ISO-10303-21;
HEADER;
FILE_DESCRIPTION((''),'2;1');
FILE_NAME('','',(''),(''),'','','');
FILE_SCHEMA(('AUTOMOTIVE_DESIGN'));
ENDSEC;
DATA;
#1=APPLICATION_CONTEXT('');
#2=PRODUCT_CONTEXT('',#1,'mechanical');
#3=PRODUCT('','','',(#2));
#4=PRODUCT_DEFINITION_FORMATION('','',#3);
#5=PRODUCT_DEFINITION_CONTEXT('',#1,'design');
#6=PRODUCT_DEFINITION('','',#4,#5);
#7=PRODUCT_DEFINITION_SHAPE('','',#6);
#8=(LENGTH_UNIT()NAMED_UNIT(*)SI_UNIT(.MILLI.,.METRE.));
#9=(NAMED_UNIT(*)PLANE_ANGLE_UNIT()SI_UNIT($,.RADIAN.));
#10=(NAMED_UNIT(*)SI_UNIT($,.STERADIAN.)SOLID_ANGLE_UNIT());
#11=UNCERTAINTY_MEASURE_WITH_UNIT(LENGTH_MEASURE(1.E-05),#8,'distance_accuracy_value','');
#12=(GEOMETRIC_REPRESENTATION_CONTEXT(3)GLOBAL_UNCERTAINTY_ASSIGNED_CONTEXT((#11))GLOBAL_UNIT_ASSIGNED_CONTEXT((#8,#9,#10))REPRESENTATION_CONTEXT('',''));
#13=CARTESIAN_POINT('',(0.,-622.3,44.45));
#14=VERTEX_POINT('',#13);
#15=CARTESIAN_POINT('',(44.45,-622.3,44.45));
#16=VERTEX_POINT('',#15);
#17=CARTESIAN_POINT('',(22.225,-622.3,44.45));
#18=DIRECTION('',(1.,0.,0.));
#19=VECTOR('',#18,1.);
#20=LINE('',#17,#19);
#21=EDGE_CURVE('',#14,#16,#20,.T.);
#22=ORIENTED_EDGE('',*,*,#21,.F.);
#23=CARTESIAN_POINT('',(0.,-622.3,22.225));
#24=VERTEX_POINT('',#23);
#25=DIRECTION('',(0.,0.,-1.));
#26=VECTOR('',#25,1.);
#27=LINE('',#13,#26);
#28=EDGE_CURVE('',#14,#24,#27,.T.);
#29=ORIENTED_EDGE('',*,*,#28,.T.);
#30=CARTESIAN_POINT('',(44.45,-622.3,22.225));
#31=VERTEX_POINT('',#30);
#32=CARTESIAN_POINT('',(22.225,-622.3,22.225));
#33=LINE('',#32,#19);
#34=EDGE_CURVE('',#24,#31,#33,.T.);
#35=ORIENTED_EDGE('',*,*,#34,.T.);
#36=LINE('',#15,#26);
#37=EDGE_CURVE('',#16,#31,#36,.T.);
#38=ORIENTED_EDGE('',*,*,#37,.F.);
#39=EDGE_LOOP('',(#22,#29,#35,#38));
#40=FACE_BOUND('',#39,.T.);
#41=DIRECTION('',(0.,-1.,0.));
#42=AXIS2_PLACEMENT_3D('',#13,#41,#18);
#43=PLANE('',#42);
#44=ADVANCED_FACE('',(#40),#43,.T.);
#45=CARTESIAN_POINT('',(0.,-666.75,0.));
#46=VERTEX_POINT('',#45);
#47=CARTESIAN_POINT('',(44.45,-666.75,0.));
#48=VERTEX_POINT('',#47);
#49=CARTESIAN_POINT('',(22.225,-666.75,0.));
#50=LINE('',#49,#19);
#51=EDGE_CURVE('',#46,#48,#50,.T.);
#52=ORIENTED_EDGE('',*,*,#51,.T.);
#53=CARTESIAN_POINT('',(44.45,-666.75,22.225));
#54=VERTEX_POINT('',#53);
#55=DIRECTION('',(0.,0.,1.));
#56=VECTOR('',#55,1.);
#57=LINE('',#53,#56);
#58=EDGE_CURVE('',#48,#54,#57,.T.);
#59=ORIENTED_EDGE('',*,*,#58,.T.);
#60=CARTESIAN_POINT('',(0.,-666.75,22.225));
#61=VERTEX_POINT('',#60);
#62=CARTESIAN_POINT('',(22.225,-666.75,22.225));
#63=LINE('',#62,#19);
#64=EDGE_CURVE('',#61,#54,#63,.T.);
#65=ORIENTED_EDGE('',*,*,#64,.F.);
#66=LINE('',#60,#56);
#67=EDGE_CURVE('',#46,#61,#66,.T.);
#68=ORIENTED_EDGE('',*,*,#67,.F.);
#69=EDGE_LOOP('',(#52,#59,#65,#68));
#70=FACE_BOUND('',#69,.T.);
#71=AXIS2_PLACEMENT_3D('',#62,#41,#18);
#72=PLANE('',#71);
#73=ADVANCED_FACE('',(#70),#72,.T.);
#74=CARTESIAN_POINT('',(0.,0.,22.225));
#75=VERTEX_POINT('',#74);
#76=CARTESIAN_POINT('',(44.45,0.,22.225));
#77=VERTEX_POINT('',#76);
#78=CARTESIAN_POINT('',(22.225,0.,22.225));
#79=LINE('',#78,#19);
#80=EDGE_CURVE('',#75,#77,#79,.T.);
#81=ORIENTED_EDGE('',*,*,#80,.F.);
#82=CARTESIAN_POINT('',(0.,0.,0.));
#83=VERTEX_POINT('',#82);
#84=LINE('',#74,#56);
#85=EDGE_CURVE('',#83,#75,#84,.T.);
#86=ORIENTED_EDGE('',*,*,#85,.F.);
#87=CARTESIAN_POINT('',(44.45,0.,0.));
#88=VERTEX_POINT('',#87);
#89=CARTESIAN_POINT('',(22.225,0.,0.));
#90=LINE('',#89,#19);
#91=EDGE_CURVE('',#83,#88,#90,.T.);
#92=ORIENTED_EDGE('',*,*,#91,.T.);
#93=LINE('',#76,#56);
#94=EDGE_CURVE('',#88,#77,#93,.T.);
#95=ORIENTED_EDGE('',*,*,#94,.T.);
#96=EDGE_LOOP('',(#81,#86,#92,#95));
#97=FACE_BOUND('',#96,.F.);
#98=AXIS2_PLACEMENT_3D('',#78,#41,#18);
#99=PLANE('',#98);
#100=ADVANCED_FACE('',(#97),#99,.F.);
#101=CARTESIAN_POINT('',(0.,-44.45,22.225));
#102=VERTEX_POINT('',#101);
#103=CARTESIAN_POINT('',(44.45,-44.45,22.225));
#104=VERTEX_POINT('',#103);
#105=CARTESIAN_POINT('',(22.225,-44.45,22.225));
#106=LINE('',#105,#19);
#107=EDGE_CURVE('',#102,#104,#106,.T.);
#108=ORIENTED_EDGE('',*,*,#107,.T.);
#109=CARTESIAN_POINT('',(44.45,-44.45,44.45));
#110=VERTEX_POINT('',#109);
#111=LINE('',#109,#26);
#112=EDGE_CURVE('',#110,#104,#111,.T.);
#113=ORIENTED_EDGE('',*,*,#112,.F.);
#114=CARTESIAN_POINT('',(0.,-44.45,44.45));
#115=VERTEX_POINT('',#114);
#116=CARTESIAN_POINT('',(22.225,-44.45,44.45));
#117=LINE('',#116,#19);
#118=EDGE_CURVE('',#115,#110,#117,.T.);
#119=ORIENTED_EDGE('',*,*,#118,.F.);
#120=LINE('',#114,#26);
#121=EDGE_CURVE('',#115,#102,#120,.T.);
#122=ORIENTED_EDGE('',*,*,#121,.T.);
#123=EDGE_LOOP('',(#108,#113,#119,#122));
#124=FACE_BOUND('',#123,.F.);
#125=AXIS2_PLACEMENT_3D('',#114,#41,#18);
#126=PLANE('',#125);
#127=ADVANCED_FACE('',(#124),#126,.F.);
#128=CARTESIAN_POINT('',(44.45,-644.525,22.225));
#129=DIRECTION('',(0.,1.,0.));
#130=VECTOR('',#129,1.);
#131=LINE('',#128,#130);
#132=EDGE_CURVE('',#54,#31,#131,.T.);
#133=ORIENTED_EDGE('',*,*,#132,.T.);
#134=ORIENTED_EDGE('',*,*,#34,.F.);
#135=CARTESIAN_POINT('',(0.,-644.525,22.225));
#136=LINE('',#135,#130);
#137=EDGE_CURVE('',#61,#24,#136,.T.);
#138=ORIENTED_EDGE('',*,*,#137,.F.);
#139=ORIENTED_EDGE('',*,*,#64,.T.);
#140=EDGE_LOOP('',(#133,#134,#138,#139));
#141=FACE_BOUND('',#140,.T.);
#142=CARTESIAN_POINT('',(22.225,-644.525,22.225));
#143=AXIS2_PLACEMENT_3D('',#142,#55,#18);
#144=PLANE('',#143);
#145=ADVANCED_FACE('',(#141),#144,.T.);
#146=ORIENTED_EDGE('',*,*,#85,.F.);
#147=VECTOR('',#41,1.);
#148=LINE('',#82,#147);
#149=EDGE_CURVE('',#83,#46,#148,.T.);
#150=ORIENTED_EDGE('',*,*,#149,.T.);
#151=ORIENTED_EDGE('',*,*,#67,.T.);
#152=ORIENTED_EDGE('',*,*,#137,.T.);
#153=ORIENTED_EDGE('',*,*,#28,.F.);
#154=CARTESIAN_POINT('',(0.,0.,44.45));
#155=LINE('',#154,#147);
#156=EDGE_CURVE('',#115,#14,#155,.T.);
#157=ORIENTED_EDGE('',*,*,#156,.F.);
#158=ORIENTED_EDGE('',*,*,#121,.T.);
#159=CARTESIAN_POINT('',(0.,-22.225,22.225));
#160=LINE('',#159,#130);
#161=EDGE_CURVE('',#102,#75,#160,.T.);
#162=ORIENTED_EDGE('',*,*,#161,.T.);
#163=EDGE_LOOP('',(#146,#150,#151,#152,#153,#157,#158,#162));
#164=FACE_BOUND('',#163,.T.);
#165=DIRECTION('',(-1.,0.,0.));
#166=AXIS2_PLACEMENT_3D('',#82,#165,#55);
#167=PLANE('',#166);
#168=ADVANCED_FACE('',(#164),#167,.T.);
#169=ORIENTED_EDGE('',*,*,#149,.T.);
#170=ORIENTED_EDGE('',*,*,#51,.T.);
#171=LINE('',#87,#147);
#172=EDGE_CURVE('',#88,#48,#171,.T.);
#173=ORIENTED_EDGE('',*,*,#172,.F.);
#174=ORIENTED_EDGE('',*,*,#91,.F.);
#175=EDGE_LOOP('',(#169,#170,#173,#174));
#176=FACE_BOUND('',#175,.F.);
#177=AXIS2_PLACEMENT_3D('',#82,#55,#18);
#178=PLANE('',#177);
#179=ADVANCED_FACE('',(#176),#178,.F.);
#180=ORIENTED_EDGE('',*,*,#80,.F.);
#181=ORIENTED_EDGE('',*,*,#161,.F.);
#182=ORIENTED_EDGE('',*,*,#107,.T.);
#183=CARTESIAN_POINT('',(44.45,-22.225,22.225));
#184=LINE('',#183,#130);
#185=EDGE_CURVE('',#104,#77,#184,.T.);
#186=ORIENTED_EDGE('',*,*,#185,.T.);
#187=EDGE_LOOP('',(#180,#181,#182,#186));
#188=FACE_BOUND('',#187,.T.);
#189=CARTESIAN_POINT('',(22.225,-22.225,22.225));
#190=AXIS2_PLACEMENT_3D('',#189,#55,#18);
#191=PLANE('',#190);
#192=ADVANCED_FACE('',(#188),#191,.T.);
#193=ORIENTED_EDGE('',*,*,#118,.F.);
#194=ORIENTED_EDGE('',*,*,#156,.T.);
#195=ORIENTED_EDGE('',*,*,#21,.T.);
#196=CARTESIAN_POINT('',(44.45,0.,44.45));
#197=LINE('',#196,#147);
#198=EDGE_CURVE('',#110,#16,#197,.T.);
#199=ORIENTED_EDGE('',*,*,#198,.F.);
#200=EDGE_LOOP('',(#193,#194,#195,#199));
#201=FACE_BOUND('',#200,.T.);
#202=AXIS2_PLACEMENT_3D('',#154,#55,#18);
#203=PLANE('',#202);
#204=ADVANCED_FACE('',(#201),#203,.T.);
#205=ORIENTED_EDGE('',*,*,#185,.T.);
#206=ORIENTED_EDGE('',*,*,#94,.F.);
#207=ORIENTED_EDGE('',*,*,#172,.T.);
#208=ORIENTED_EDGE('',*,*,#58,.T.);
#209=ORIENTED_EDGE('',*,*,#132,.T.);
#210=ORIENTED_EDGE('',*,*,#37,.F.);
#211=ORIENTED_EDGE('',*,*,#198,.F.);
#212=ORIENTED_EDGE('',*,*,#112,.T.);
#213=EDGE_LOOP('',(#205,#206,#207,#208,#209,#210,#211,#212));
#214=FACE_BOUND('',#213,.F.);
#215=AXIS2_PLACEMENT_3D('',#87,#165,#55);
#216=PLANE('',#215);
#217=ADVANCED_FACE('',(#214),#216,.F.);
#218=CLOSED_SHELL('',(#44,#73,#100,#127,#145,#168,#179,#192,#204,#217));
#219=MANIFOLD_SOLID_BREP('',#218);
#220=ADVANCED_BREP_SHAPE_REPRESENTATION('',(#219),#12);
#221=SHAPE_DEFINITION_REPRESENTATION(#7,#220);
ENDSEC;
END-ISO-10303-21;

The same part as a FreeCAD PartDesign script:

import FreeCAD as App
import Part
import Sketcher
Q = App.Units.Quantity


def add_polygon(sketch, points):
    """Adds a closed chain of lines whose ends are joined by coincident constraints."""
    first, n = sketch.GeometryCount, len(points)
    for a, b in zip(points, points[1:] + points[:1]):
        sketch.addGeometry(Part.LineSegment(App.Vector(*a, 0), App.Vector(*b, 0)), False)
    for i in range(n):
        sketch.addConstraint(Sketcher.Constraint("Coincident", first + i, 2, first + (i + 1) % n, 1))

doc = App.newDocument("Part")
body = doc.addObject("PartDesign::Body", "Body")

# Sketch on XZ plane
sketch1 = body.newObject("Sketcher::SketchObject", "Sketch")
sketch1.AttachmentSupport = (doc.getObject("XZ_Plane"), [""])
sketch1.MapMode = "FlatFace"
add_polygon(sketch1, [(0, 44.45), (0, 0), (44.45, 0), (44.45, 44.45)])  # lines 0-3
sketch1.addConstraint([
    Sketcher.Constraint("Vertical", 0),
    Sketcher.Constraint("Horizontal", 1),
    Sketcher.Constraint("Vertical", 2),
    Sketcher.Constraint("Horizontal", 3),
    Sketcher.Constraint("Coincident", 0, 2, -1, 1),
    Sketcher.Constraint("Equal", 3, 0),
    Sketcher.Constraint("DistanceX", 1, 1, 1, 2, Q("1.75 in")),
])
pad1 = body.newObject("PartDesign::Pad", "Pad")
pad1.Profile = sketch1
pad1.Length = Q("26.25 in")

# Sketch on XY plane
sketch2 = body.newObject("Sketcher::SketchObject", "Sketch001")
sketch2.AttachmentSupport = (doc.getObject("XY_Plane"), [""])
sketch2.MapMode = "FlatFace"
sketch2.AttachmentOffset = App.Placement(App.Vector(0, 0, 1.75 * 25.4), App.Rotation())
add_polygon(sketch2, [(0, -622.3), (0, -666.75), (44.45, -666.75), (44.45, -622.3)])  # lines 0-3
add_polygon(sketch2, [(0, 0), (0, -44.45), (44.45, -44.45), (44.45, 0)])  # lines 4-7
sketch2.addConstraint([
    Sketcher.Constraint("Vertical", 0),
    Sketcher.Constraint("Horizontal", 1),
    Sketcher.Constraint("Vertical", 2),
    Sketcher.Constraint("Horizontal", 3),
    Sketcher.Constraint("Vertical", 4),
    Sketcher.Constraint("Horizontal", 5),
    Sketcher.Constraint("Vertical", 6),
    Sketcher.Constraint("Horizontal", 7),
    Sketcher.Constraint("Coincident", 7, 2, -1, 1),
    Sketcher.Constraint("PointOnObject", 0, 2, -2),
    Sketcher.Constraint("Vertical", 2, 2, 5, 2),
    Sketcher.Constraint("Equal", 7, 0),
    Sketcher.Constraint("Equal", 2, 4),
    Sketcher.Constraint("DistanceX", 1, 1, 1, 2, Q("1.75 in")),
    Sketcher.Constraint("DistanceY", 2, 2, -1, 1, Q("24.5 in")),
])
pocket1 = body.newObject("PartDesign::Pocket", "Pocket")
pocket1.Profile = sketch2
pocket1.Length = Q("0.875 in")

doc.recompute()
